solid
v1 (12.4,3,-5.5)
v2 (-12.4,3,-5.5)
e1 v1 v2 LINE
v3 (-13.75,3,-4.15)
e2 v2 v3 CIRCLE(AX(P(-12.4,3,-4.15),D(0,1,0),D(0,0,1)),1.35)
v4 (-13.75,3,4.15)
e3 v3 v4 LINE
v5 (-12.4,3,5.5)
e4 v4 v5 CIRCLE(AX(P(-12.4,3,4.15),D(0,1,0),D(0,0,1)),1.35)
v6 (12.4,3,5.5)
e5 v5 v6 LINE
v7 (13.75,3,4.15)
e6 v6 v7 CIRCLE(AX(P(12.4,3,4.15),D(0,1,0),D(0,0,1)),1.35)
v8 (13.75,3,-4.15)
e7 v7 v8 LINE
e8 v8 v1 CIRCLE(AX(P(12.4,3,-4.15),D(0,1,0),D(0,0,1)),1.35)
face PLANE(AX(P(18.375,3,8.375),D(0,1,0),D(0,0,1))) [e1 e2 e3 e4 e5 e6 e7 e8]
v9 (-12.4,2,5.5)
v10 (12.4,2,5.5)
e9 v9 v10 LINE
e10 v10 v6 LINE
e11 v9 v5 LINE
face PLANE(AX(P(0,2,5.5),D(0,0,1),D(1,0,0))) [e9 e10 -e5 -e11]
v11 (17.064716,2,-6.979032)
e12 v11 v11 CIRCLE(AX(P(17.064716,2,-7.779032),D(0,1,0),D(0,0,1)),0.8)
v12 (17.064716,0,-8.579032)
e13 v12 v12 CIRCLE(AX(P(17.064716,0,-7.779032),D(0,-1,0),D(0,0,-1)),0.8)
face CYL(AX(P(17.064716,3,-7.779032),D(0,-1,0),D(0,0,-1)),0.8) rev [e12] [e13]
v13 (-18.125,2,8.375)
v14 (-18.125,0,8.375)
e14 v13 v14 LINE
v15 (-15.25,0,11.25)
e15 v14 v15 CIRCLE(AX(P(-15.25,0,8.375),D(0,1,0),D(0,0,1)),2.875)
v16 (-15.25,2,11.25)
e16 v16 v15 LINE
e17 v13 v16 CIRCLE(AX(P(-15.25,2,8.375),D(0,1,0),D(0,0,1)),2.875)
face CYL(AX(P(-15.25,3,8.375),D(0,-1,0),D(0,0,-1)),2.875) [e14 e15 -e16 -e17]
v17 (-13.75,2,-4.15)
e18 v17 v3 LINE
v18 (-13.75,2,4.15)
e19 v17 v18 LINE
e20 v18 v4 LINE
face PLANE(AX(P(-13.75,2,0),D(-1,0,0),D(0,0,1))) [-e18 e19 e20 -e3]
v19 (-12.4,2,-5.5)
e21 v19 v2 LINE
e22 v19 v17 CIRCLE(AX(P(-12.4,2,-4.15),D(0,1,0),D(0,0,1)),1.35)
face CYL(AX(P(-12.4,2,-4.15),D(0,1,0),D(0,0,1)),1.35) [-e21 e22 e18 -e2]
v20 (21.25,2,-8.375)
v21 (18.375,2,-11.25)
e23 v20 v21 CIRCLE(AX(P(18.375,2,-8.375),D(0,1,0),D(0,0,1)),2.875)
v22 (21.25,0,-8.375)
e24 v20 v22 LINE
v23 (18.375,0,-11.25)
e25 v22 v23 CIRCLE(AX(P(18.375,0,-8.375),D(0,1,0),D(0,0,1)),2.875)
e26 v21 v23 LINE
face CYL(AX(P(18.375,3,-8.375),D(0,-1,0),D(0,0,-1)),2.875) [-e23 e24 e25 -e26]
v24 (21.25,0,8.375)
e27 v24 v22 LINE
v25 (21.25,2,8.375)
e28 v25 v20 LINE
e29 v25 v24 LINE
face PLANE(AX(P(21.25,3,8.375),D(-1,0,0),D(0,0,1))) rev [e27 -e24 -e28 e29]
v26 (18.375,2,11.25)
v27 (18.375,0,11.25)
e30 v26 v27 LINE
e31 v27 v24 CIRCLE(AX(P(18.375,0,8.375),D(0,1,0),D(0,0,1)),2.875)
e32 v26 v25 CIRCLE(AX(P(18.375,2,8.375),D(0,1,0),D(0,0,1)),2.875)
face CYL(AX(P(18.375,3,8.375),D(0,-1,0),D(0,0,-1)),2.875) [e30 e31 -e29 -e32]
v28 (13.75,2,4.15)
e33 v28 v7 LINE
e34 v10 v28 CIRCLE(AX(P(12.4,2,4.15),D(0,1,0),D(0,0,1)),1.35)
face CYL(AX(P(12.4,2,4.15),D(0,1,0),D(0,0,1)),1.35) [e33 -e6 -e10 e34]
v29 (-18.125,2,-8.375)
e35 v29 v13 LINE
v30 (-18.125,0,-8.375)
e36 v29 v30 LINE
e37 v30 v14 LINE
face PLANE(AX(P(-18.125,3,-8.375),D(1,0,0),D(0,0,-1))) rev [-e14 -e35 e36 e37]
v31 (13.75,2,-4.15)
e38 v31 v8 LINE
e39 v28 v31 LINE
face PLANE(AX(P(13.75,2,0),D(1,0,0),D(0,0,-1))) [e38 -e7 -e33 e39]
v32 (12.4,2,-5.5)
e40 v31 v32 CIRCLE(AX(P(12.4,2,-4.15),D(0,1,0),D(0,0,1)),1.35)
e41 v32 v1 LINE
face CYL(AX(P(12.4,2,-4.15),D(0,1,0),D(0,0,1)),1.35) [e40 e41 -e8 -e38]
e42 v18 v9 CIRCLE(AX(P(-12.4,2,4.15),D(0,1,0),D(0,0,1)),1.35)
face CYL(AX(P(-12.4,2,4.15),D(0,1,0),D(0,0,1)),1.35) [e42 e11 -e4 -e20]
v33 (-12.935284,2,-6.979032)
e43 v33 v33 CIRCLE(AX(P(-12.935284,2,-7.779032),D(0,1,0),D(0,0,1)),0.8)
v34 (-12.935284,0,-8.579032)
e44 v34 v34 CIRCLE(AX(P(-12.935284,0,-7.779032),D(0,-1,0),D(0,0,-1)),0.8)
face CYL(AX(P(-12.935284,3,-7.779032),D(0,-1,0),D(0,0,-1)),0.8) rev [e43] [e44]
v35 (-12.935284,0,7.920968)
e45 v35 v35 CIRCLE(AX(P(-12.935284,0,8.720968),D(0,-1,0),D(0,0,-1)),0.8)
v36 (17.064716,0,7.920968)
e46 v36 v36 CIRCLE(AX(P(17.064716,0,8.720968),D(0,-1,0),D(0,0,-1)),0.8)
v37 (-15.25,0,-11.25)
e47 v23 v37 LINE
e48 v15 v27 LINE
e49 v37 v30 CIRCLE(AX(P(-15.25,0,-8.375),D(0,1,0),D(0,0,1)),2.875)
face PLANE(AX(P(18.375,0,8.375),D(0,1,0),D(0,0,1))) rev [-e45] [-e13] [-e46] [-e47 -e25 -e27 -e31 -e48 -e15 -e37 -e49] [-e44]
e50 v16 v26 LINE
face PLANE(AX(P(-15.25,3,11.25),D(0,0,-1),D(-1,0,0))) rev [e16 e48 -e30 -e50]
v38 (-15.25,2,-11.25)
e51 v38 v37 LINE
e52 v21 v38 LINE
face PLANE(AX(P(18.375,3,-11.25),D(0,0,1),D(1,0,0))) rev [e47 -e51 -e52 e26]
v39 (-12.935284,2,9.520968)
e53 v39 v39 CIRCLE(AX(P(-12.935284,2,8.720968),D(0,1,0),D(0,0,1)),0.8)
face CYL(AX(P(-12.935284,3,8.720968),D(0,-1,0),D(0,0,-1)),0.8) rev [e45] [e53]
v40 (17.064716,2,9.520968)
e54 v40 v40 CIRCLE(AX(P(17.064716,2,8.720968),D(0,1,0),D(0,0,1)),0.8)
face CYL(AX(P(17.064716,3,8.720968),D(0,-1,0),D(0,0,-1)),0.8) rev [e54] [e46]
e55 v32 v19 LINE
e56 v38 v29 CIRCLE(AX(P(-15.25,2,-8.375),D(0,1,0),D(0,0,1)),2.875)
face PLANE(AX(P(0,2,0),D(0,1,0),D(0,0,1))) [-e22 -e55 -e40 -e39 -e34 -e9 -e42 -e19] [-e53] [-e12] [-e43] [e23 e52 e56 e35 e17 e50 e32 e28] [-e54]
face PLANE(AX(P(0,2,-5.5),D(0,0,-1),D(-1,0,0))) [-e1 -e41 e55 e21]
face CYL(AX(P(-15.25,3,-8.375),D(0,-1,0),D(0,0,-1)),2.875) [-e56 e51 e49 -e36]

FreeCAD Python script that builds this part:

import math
import FreeCAD as App
import Part
import Sketcher

V = App.Vector

doc = App.newDocument("Part")
body = doc.addObject("PartDesign::Body", "Body")

# Sketch on XZ plane
sketch1 = body.newObject("Sketcher::SketchObject", "Sketch")
sketch1.AttachmentSupport = (doc.getObject("XZ_Plane"), [""])
sketch1.MapMode = "FlatFace"
sketch1.addGeometry([
    Part.LineSegment(V(21.2, 8.4, 0), V(21.2, -8.4, 0)),  # 0
    Part.ArcOfCircle(Part.Circle(V(18.4, -8.4, 0), V(0, 0, 1), 2.9), math.radians(-90), math.radians(0)),  # 1
    Part.LineSegment(V(18.4, -11.2, 0), V(-15.2, -11.2, 0)),  # 2
    Part.ArcOfCircle(Part.Circle(V(-15.2, -8.4, 0), V(0, 0, 1), 2.9), math.radians(180), math.radians(270)),  # 3
    Part.LineSegment(V(-18.1, -8.4, 0), V(-18.1, 8.4, 0)),  # 4
    Part.ArcOfCircle(Part.Circle(V(-15.2, 8.4, 0), V(0, 0, 1), 2.9), math.radians(90), math.radians(180)),  # 5
    Part.LineSegment(V(-15.2, 11.2, 0), V(18.4, 11.2, 0)),  # 6
    Part.ArcOfCircle(Part.Circle(V(18.4, 8.4, 0), V(0, 0, 1), 2.9), math.radians(0), math.radians(90)),  # 7
], False)
sketch1.addConstraint([
    Sketcher.Constraint("Tangent", 0, 2, 1, 2),
    Sketcher.Constraint("Tangent", 1, 1, 2, 1),
    Sketcher.Constraint("Tangent", 2, 2, 3, 2),
    Sketcher.Constraint("Tangent", 3, 1, 4, 1),
    Sketcher.Constraint("Tangent", 4, 2, 5, 2),
    Sketcher.Constraint("Tangent", 5, 1, 6, 1),
    Sketcher.Constraint("Tangent", 6, 2, 7, 2),
    Sketcher.Constraint("Tangent", 7, 1, 0, 1),
    Sketcher.Constraint("Vertical", 0),
    Sketcher.Constraint("Horizontal", 2),
    Sketcher.Constraint("Vertical", 4),
    Sketcher.Constraint("Horizontal", 6),
    Sketcher.Constraint("Equal", 1, 3),
    Sketcher.Constraint("Equal", 3, 5),
    Sketcher.Constraint("Equal", 5, 7),
    Sketcher.Constraint("Radius", 1, 2.875),
    Sketcher.Constraint("DistanceY", 0, 2, 0, 1, 16.75),
    Sketcher.Constraint("DistanceX", 3, 3, 0, 2, 36.5),
    Sketcher.Constraint("DistanceX", 3, 3, -1, 1, 15.25),
    Sketcher.Constraint("DistanceY", 1, 1, -1, 1, 11.25),
])
pad1 = body.newObject("PartDesign::Pad", "Pad")
pad1.Profile = sketch1
pad1.Length = 3
pad1.Reversed = True

# Sketch on XZ plane
sketch2 = body.newObject("Sketcher::SketchObject", "Sketch001")
sketch2.AttachmentSupport = (doc.getObject("XZ_Plane"), [""])
sketch2.MapMode = "FlatFace"
sketch2.AttachmentOffset = App.Placement(V(0, 0, -3), App.Rotation())
sketch2.addGeometry([
    Part.ArcOfCircle(Part.Circle(V(18.4, 8.4, 0), V(0, 0, 1), 2.9), math.radians(0), math.radians(90)),  # 0
    Part.LineSegment(V(21.2, 8.4, 0), V(21.2, -8.4, 0)),  # 1
    Part.ArcOfCircle(Part.Circle(V(18.4, -8.4, 0), V(0, 0, 1), 2.9), math.radians(-90), math.radians(0)),  # 2
    Part.LineSegment(V(18.4, -11.2, 0), V(-15.2, -11.2, 0)),  # 3
    Part.ArcOfCircle(Part.Circle(V(-15.2, -8.4, 0), V(0, 0, 1), 2.9), math.radians(180), math.radians(270)),  # 4
    Part.LineSegment(V(-18.1, -8.4, 0), V(-18.1, 8.4, 0)),  # 5
    Part.ArcOfCircle(Part.Circle(V(-15.2, 8.4, 0), V(0, 0, 1), 2.9), math.radians(90), math.radians(180)),  # 6
    Part.LineSegment(V(-15.2, 11.2, 0), V(18.4, 11.2, 0)),  # 7
    Part.ArcOfCircle(Part.Circle(V(-12.4, 4.2, 0), V(0, 0, 1), 1.3), math.radians(90), math.radians(180)),  # 8
    Part.LineSegment(V(-13.8, 4.2, 0), V(-13.8, -4.2, 0)),  # 9
    Part.ArcOfCircle(Part.Circle(V(-12.4, -4.2, 0), V(0, 0, 1), 1.3), math.radians(180), math.radians(270)),  # 10
    Part.LineSegment(V(-12.4, -5.5, 0), V(12.4, -5.5, 0)),  # 11
    Part.ArcOfCircle(Part.Circle(V(12.4, -4.2, 0), V(0, 0, 1), 1.3), math.radians(-90), math.radians(0)),  # 12
    Part.LineSegment(V(13.8, -4.2, 0), V(13.8, 4.2, 0)),  # 13
    Part.ArcOfCircle(Part.Circle(V(12.4, 4.2, 0), V(0, 0, 1), 1.3), math.radians(0), math.radians(90)),  # 14
    Part.LineSegment(V(12.4, 5.5, 0), V(-12.4, 5.5, 0)),  # 15
], False)
sketch2.addConstraint([
    Sketcher.Constraint("Tangent", 0, 1, 1, 1),
    Sketcher.Constraint("Tangent", 1, 2, 2, 2),
    Sketcher.Constraint("Tangent", 2, 1, 3, 1),
    Sketcher.Constraint("Tangent", 3, 2, 4, 2),
    Sketcher.Constraint("Tangent", 4, 1, 5, 1),
    Sketcher.Constraint("Tangent", 5, 2, 6, 2),
    Sketcher.Constraint("Tangent", 6, 1, 7, 1),
    Sketcher.Constraint("Tangent", 7, 2, 0, 2),
    Sketcher.Constraint("Tangent", 8, 2, 9, 1),
    Sketcher.Constraint("Tangent", 9, 2, 10, 1),
    Sketcher.Constraint("Tangent", 10, 2, 11, 1),
    Sketcher.Constraint("Tangent", 11, 2, 12, 1),
    Sketcher.Constraint("Tangent", 12, 2, 13, 1),
    Sketcher.Constraint("Tangent", 13, 2, 14, 1),
    Sketcher.Constraint("Tangent", 14, 2, 15, 1),
    Sketcher.Constraint("Tangent", 15, 2, 8, 1),
    Sketcher.Constraint("Vertical", 1),
    Sketcher.Constraint("Horizontal", 3),
    Sketcher.Constraint("Vertical", 5),
    Sketcher.Constraint("Horizontal", 7),
    Sketcher.Constraint("Vertical", 9),
    Sketcher.Constraint("Horizontal", 11),
    Sketcher.Constraint("Vertical", 13),
    Sketcher.Constraint("Horizontal", 15),
    Sketcher.Constraint("Equal", 0, 2),
    Sketcher.Constraint("Equal", 2, 4),
    Sketcher.Constraint("Equal", 4, 6),
    Sketcher.Constraint("Equal", 8, 10),
    Sketcher.Constraint("Equal", 10, 12),
    Sketcher.Constraint("Equal", 12, 14),
    Sketcher.Constraint("Symmetric", 8, 3, 12, 3, -1, 1),
    Sketcher.Constraint("Radius", 8, 1.35),
    Sketcher.Constraint("DistanceX", 11, 1, 11, 2, 24.8),
    Sketcher.Constraint("DistanceY", 9, 2, 9, 1, 8.3),
    Sketcher.Constraint("Radius", 0, 2.875),
    Sketcher.Constraint("DistanceY", 1, 2, 1, 1, 16.75),
    Sketcher.Constraint("DistanceY", 2, 1, 12, 3, 7.1),
    Sketcher.Constraint("DistanceX", 6, 3, 8, 2, 1.5),
    Sketcher.Constraint("DistanceX", 3, 2, 3, 1, 33.625),
])
pocket1 = body.newObject("PartDesign::Pocket", "Pocket")
pocket1.Profile = sketch2
pocket1.Length = 1
pocket1.Reversed = True

# Sketch on XZ plane
sketch3 = body.newObject("Sketcher::SketchObject", "Sketch002")
sketch3.AttachmentSupport = (doc.getObject("XZ_Plane"), [""])
sketch3.MapMode = "FlatFace"
sketch3.addGeometry([
    Part.Circle(V(-12.9, -7.8, 0), V(0, 0, 1), 0.8),
    Part.Circle(V(-12.9, 8.7, 0), V(0, 0, 1), 0.8),
    Part.Circle(V(17.1, -7.8, 0), V(0, 0, 1), 0.8),
    Part.Circle(V(17.1, 8.7, 0), V(0, 0, 1), 0.8),
], False)
sketch3.addConstraint([
    Sketcher.Constraint("Equal", 0, 1),
    Sketcher.Constraint("Equal", 1, 2),
    Sketcher.Constraint("Equal", 2, 3),
    Sketcher.Constraint("Horizontal", 0, 3, 2, 3),
    Sketcher.Constraint("Horizontal", 1, 3, 3, 3),
    Sketcher.Constraint("Vertical", 0, 3, 1, 3),
    Sketcher.Constraint("Vertical", 2, 3, 3, 3),
    Sketcher.Constraint("Diameter", 0, 1.6),
    Sketcher.Constraint("DistanceX", 0, 3, 2, 3, 30.0),
    Sketcher.Constraint("DistanceY", 0, 3, 1, 3, 16.5),
    Sketcher.Constraint("DistanceX", 0, 3, -1, 1, 12.935284),
    Sketcher.Constraint("DistanceY", 0, 3, -1, 1, 7.779032),
])
pocket2 = body.newObject("PartDesign::Pocket", "Pocket001")
pocket2.Profile = sketch3
pocket2.Type = "ThroughAll"

doc.recompute()
